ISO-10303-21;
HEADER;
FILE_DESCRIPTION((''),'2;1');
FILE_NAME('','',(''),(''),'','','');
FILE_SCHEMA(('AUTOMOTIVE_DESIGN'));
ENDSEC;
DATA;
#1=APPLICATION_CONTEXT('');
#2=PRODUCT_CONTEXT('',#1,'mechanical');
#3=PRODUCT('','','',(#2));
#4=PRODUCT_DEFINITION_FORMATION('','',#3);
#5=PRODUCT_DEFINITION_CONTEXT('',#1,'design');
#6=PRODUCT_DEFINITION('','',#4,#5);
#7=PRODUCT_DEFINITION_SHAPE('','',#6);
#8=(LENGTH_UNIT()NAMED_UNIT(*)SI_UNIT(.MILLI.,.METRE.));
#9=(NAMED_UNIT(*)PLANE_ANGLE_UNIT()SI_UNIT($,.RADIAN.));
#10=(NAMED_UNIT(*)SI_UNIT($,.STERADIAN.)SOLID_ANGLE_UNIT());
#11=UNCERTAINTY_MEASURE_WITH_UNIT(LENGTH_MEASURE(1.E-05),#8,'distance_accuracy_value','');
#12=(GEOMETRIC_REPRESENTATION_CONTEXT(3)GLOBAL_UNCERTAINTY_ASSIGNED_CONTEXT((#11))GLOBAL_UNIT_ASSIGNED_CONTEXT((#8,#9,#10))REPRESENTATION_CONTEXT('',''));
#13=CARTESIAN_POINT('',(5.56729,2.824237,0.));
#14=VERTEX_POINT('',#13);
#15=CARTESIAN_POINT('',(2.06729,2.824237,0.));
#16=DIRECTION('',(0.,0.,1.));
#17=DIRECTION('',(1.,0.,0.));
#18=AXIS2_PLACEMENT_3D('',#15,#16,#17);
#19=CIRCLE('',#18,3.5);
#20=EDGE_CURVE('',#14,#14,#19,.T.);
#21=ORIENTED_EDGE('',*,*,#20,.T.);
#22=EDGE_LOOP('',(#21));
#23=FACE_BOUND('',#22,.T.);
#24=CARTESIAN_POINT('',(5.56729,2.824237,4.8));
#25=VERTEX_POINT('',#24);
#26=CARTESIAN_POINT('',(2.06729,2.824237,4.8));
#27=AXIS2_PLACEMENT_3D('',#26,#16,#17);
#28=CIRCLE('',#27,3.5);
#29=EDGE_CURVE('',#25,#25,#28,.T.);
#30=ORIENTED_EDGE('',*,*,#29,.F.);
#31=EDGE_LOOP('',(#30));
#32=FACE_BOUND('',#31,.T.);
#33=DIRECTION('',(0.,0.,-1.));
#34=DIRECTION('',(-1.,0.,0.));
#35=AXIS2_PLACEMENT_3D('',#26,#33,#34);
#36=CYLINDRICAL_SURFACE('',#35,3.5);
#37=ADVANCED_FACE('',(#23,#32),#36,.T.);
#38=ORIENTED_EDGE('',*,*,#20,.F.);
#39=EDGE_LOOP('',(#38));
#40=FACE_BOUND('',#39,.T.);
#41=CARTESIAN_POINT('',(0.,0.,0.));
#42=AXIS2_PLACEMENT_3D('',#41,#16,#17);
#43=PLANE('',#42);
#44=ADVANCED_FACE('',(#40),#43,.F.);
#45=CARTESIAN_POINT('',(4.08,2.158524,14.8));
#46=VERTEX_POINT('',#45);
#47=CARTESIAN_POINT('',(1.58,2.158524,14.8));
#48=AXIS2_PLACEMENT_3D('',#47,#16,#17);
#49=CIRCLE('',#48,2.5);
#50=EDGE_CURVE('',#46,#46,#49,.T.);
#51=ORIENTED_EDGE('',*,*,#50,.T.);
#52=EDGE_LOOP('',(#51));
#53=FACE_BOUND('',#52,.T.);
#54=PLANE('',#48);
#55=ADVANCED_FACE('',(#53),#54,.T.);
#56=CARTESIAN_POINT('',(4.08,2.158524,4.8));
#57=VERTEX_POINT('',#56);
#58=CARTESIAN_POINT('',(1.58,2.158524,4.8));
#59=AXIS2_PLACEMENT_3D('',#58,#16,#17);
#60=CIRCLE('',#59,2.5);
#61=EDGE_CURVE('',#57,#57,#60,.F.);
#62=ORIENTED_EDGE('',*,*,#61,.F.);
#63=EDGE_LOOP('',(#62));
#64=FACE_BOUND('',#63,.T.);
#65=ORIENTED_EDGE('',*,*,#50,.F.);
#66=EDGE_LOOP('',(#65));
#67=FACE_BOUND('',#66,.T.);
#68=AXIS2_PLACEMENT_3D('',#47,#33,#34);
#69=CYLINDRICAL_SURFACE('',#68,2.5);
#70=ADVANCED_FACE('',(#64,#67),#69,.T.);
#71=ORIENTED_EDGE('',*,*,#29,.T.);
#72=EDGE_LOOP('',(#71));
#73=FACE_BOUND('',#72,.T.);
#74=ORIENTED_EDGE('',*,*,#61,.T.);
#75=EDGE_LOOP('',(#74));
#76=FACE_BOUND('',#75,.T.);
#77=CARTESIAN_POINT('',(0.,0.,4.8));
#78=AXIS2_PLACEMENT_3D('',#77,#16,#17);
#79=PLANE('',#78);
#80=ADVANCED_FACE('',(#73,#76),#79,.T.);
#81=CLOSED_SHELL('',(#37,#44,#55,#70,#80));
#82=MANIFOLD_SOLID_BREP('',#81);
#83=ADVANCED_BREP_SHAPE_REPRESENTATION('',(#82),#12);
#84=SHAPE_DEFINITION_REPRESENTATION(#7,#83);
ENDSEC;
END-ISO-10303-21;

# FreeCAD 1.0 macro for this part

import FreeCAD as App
import Part
import Sketcher
Q = App.Units.Quantity

doc = App.newDocument("Part")
params = doc.addObject("Spreadsheet::Sheet", "Params")
for row, (alias, value) in enumerate([
    ("sketch1_diameter", "7 mm"),
    ("pad1_length", "4.8 mm"),
    ("sketch2_diameter", "5 mm"),
    ("pad2_length", "14.8 mm"),
], start=1):
    params.set(f"A{row}", alias)
    params.set(f"B{row}", "=" + value)
    params.setAlias(f"B{row}", alias)

body = doc.addObject("PartDesign::Body", "Body")

# Sketch on XY plane
sketch1 = doc.addObject("Sketcher::SketchObject", "Sketch")
body.addObject(sketch1)
sketch1.AttachmentSupport = (doc.XY_Plane, [""])
sketch1.MapMode = "FlatFace"
sketch1.addGeometry(Part.Circle(App.Vector(2.1, 2.8, 0), App.Vector(0, 0, 1), 3.5), False)
sketch1.addConstraint([
    Sketcher.Constraint("Diameter", 0, Q("7 mm")),
    Sketcher.Constraint("DistanceX", -1, 1, 0, 3, Q("2.06729 mm")),
    Sketcher.Constraint("DistanceY", -1, 1, 0, 3, Q("2.824237 mm")),
])
sketch1.setExpression("Constraints[0]", "Params.sketch1_diameter")
pad1 = doc.addObject("PartDesign::Pad", "Pad")
body.addObject(pad1)
pad1.Profile = sketch1
pad1.setExpression("Length", "Params.pad1_length")

# Sketch on XY plane
sketch2 = doc.addObject("Sketcher::SketchObject", "Sketch001")
body.addObject(sketch2)
sketch2.AttachmentSupport = (doc.XY_Plane, [""])
sketch2.MapMode = "FlatFace"
sketch2.addGeometry(Part.Circle(App.Vector(1.6, 2.2, 0), App.Vector(0, 0, 1), 2.5), False)
sketch2.addConstraint([
    Sketcher.Constraint("Diameter", 0, Q("5 mm")),
    Sketcher.Constraint("DistanceX", -1, 1, 0, 3, Q("1.58 mm")),
    Sketcher.Constraint("DistanceY", -1, 1, 0, 3, Q("2.158524 mm")),
])
sketch2.setExpression("Constraints[0]", "Params.sketch2_diameter")
pad2 = doc.addObject("PartDesign::Pad", "Pad001")
body.addObject(pad2)
pad2.Profile = sketch2
pad2.setExpression("Length", "Params.pad2_length")

doc.recompute()
